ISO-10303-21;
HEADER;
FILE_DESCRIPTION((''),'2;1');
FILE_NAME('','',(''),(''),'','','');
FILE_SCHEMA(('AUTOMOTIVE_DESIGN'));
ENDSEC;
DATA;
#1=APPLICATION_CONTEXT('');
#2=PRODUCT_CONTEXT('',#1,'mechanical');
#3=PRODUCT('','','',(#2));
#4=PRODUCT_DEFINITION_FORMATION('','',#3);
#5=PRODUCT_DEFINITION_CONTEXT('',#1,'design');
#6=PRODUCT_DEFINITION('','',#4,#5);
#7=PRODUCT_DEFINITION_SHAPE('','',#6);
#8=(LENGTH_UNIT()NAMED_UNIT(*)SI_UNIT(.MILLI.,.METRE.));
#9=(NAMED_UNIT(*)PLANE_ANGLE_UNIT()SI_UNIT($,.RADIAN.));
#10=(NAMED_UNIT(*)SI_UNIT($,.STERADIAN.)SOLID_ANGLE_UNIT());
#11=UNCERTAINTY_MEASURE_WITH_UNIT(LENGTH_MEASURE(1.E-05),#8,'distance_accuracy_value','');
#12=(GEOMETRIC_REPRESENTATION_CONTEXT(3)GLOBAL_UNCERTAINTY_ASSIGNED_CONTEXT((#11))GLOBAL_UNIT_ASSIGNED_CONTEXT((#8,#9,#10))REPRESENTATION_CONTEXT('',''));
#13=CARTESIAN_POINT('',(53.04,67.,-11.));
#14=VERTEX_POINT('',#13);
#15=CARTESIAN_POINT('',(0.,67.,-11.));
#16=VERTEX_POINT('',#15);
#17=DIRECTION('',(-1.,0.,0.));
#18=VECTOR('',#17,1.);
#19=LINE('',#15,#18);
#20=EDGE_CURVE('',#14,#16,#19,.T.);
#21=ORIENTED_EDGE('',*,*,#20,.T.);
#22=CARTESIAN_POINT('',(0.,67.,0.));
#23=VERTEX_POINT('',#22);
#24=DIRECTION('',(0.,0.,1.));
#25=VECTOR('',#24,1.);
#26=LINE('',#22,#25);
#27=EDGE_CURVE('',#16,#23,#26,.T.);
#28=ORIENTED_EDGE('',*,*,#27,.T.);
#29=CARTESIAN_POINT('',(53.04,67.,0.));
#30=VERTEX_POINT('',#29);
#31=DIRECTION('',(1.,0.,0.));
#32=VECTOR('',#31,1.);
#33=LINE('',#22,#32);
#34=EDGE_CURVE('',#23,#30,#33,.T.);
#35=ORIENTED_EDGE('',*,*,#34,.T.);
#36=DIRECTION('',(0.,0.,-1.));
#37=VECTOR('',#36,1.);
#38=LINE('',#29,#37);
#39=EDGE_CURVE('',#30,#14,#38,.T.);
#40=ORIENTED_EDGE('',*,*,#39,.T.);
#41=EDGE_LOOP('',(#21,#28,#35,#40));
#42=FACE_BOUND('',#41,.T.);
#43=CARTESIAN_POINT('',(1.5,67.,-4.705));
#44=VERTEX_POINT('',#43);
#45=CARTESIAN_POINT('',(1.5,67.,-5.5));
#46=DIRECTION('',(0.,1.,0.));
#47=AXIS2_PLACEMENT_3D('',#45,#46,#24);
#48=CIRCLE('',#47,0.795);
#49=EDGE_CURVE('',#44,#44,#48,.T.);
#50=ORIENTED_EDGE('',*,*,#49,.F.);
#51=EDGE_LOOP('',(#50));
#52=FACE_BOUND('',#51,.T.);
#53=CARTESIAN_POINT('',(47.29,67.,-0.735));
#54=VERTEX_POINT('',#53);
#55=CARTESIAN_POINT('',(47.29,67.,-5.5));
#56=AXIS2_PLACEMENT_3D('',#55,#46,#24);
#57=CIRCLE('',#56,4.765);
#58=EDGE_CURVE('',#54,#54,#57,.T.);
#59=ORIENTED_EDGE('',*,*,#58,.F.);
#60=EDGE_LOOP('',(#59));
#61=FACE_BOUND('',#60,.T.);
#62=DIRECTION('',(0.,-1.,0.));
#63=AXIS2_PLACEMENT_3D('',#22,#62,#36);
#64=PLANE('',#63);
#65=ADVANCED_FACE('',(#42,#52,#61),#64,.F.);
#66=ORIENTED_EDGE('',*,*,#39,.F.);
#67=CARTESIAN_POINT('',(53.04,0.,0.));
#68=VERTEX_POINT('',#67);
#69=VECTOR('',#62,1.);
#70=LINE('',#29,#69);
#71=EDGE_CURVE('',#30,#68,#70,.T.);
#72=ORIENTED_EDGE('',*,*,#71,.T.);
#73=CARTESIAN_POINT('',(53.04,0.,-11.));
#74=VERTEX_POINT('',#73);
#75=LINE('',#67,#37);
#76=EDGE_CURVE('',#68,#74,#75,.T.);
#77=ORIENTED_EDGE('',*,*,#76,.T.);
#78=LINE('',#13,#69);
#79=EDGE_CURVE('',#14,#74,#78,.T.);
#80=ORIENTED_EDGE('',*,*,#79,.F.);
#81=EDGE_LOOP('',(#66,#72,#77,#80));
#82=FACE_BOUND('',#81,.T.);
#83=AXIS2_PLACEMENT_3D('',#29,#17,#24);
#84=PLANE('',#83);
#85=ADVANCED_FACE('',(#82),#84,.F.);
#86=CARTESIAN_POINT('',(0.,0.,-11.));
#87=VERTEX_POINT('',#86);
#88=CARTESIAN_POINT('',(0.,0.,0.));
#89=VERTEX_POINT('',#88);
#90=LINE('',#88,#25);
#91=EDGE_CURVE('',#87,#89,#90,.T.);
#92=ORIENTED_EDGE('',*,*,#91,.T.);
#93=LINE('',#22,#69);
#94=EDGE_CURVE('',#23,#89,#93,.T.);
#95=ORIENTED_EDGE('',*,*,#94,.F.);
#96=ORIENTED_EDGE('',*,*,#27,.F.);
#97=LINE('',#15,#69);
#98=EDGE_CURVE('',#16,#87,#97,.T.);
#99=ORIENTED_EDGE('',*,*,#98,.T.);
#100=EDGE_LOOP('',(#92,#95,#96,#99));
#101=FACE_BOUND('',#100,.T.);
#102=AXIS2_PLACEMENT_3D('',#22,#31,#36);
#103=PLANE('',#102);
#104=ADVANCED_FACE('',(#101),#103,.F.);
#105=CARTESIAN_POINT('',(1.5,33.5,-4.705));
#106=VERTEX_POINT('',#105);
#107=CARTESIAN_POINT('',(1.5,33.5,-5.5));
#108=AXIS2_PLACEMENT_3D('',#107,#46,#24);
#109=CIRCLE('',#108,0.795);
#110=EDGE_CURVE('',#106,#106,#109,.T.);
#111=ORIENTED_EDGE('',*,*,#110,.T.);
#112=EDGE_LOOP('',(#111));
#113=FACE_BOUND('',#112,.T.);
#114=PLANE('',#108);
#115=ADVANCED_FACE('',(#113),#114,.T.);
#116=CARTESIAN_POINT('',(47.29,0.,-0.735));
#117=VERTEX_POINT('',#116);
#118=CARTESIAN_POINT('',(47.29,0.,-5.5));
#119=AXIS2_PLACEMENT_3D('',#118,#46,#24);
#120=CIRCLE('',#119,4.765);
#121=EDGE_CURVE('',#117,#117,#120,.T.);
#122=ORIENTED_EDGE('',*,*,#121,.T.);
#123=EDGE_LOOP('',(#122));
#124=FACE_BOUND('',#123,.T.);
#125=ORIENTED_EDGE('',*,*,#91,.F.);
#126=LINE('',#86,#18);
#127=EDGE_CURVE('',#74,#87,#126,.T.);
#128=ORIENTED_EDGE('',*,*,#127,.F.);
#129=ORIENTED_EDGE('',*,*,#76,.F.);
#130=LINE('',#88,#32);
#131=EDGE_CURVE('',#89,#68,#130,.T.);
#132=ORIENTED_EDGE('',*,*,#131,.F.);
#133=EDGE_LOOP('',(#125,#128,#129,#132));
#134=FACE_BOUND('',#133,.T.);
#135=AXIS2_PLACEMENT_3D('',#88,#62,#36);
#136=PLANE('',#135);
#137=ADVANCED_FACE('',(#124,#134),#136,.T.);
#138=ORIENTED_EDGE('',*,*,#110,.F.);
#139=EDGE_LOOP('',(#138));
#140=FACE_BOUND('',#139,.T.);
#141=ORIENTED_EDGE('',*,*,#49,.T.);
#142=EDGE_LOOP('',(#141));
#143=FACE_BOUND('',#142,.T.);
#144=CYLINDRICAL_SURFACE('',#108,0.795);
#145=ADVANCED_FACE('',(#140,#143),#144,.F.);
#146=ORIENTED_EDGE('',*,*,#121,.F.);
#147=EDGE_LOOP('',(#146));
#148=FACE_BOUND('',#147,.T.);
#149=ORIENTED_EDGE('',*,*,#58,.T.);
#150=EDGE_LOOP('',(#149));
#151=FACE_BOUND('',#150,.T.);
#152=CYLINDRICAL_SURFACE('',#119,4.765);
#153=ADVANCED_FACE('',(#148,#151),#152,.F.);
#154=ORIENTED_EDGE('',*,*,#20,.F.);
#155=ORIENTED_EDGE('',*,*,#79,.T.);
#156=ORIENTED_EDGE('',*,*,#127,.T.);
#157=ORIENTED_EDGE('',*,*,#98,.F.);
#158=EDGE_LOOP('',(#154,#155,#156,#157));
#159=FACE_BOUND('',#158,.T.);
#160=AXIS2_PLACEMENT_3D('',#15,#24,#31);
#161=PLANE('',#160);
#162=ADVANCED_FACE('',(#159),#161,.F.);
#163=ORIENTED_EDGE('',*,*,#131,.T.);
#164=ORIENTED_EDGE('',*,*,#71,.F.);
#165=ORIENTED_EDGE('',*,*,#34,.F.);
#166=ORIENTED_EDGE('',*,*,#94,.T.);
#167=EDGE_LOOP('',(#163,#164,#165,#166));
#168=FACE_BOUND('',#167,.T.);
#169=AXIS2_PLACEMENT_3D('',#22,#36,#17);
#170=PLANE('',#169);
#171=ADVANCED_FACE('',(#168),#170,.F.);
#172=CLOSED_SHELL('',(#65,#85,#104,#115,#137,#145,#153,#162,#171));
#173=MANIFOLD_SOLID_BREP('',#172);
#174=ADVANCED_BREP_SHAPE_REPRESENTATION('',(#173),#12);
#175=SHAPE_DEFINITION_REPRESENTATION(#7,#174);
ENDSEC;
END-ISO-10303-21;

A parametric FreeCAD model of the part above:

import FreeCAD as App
import Part
import Sketcher
Q = App.Units.Quantity


def add_polygon(sketch, points):
    """Adds a closed chain of lines whose ends are joined by coincident constraints."""
    first, n = sketch.GeometryCount, len(points)
    for a, b in zip(points, points[1:] + points[:1]):
        sketch.addGeometry(Part.LineSegment(App.Vector(*a, 0), App.Vector(*b, 0)), False)
    for i in range(n):
        sketch.addConstraint(Sketcher.Constraint("Coincident", first + i, 2, first + (i + 1) % n, 1))

doc = App.newDocument("Part")
body = doc.addObject("PartDesign::Body", "Body")

# Sketch on XZ plane
sketch1 = body.newObject("Sketcher::SketchObject", "Sketch")
sketch1.AttachmentSupport = (doc.getObject("XZ_Plane"), [""])
sketch1.MapMode = "FlatFace"
add_polygon(sketch1, [(0, -11), (0, 0), (53, 0), (53, -11)])  # lines 0-3
sketch1.addConstraint(Sketcher.Constraint("Vertical", 0))
sketch1.addConstraint(Sketcher.Constraint("Horizontal", 1))
sketch1.addConstraint(Sketcher.Constraint("Vertical", 2))
sketch1.addConstraint(Sketcher.Constraint("Horizontal", 3))
sketch1.addConstraint(Sketcher.Constraint("Coincident", 0, 2, -1, 1))
sketch1.addConstraint(Sketcher.Constraint("DistanceY", 0, 1, 0, 2, Q("11 mm")))
sketch1.addConstraint(Sketcher.Constraint("DistanceX", 1, 1, 1, 2, Q("53.04 mm")))
pad1 = body.newObject("PartDesign::Pad", "Pad")
pad1.Profile = sketch1
pad1.Length = 67
pad1.Reversed = True

# Sketch on XZ plane
sketch2 = body.newObject("Sketcher::SketchObject", "Sketch001")
sketch2.AttachmentSupport = (doc.getObject("XZ_Plane"), [""])
sketch2.MapMode = "FlatFace"
sketch2.AttachmentOffset = App.Placement(App.Vector(0, 0, -67), App.Rotation())
sketch2.addGeometry(Part.Circle(App.Vector(47.3, -5.5, 0), App.Vector(0, 0, 1), 4.8), False)
sketch2.addConstraint(Sketcher.Constraint("Diameter", 0, Q("9.53 mm")))
sketch2.addConstraint(Sketcher.Constraint("DistanceY", 0, 3, -1, 1, Q("5.5 mm")))
sketch2.addConstraint(Sketcher.Constraint("DistanceX", -1, 1, 0, 3, Q("47.29 mm")))
pocket1 = body.newObject("PartDesign::Pocket", "Pocket")
pocket1.Profile = sketch2
pocket1.Type = "ThroughAll"
pocket1.Reversed = True

# Sketch on XZ plane
sketch3 = body.newObject("Sketcher::SketchObject", "Sketch002")
sketch3.AttachmentSupport = (doc.getObject("XZ_Plane"), [""])
sketch3.MapMode = "FlatFace"
sketch3.AttachmentOffset = App.Placement(App.Vector(0, 0, -67), App.Rotation())
sketch3.addGeometry(Part.Circle(App.Vector(1.5, -5.5, 0), App.Vector(0, 0, 1), 0.8), False)
sketch3.addConstraint(Sketcher.Constraint("Diameter", 0, Q("1.59 mm")))
sketch3.addConstraint(Sketcher.Constraint("DistanceX", -1, 1, 0, 3, Q("1.5 mm")))
sketch3.addConstraint(Sketcher.Constraint("DistanceY", 0, 3, -1, 1, Q("5.5 mm")))
pocket2 = body.newObject("PartDesign::Pocket", "Pocket001")
pocket2.Profile = sketch3
pocket2.Length = 33.5
pocket2.Reversed = True

doc.recompute()
